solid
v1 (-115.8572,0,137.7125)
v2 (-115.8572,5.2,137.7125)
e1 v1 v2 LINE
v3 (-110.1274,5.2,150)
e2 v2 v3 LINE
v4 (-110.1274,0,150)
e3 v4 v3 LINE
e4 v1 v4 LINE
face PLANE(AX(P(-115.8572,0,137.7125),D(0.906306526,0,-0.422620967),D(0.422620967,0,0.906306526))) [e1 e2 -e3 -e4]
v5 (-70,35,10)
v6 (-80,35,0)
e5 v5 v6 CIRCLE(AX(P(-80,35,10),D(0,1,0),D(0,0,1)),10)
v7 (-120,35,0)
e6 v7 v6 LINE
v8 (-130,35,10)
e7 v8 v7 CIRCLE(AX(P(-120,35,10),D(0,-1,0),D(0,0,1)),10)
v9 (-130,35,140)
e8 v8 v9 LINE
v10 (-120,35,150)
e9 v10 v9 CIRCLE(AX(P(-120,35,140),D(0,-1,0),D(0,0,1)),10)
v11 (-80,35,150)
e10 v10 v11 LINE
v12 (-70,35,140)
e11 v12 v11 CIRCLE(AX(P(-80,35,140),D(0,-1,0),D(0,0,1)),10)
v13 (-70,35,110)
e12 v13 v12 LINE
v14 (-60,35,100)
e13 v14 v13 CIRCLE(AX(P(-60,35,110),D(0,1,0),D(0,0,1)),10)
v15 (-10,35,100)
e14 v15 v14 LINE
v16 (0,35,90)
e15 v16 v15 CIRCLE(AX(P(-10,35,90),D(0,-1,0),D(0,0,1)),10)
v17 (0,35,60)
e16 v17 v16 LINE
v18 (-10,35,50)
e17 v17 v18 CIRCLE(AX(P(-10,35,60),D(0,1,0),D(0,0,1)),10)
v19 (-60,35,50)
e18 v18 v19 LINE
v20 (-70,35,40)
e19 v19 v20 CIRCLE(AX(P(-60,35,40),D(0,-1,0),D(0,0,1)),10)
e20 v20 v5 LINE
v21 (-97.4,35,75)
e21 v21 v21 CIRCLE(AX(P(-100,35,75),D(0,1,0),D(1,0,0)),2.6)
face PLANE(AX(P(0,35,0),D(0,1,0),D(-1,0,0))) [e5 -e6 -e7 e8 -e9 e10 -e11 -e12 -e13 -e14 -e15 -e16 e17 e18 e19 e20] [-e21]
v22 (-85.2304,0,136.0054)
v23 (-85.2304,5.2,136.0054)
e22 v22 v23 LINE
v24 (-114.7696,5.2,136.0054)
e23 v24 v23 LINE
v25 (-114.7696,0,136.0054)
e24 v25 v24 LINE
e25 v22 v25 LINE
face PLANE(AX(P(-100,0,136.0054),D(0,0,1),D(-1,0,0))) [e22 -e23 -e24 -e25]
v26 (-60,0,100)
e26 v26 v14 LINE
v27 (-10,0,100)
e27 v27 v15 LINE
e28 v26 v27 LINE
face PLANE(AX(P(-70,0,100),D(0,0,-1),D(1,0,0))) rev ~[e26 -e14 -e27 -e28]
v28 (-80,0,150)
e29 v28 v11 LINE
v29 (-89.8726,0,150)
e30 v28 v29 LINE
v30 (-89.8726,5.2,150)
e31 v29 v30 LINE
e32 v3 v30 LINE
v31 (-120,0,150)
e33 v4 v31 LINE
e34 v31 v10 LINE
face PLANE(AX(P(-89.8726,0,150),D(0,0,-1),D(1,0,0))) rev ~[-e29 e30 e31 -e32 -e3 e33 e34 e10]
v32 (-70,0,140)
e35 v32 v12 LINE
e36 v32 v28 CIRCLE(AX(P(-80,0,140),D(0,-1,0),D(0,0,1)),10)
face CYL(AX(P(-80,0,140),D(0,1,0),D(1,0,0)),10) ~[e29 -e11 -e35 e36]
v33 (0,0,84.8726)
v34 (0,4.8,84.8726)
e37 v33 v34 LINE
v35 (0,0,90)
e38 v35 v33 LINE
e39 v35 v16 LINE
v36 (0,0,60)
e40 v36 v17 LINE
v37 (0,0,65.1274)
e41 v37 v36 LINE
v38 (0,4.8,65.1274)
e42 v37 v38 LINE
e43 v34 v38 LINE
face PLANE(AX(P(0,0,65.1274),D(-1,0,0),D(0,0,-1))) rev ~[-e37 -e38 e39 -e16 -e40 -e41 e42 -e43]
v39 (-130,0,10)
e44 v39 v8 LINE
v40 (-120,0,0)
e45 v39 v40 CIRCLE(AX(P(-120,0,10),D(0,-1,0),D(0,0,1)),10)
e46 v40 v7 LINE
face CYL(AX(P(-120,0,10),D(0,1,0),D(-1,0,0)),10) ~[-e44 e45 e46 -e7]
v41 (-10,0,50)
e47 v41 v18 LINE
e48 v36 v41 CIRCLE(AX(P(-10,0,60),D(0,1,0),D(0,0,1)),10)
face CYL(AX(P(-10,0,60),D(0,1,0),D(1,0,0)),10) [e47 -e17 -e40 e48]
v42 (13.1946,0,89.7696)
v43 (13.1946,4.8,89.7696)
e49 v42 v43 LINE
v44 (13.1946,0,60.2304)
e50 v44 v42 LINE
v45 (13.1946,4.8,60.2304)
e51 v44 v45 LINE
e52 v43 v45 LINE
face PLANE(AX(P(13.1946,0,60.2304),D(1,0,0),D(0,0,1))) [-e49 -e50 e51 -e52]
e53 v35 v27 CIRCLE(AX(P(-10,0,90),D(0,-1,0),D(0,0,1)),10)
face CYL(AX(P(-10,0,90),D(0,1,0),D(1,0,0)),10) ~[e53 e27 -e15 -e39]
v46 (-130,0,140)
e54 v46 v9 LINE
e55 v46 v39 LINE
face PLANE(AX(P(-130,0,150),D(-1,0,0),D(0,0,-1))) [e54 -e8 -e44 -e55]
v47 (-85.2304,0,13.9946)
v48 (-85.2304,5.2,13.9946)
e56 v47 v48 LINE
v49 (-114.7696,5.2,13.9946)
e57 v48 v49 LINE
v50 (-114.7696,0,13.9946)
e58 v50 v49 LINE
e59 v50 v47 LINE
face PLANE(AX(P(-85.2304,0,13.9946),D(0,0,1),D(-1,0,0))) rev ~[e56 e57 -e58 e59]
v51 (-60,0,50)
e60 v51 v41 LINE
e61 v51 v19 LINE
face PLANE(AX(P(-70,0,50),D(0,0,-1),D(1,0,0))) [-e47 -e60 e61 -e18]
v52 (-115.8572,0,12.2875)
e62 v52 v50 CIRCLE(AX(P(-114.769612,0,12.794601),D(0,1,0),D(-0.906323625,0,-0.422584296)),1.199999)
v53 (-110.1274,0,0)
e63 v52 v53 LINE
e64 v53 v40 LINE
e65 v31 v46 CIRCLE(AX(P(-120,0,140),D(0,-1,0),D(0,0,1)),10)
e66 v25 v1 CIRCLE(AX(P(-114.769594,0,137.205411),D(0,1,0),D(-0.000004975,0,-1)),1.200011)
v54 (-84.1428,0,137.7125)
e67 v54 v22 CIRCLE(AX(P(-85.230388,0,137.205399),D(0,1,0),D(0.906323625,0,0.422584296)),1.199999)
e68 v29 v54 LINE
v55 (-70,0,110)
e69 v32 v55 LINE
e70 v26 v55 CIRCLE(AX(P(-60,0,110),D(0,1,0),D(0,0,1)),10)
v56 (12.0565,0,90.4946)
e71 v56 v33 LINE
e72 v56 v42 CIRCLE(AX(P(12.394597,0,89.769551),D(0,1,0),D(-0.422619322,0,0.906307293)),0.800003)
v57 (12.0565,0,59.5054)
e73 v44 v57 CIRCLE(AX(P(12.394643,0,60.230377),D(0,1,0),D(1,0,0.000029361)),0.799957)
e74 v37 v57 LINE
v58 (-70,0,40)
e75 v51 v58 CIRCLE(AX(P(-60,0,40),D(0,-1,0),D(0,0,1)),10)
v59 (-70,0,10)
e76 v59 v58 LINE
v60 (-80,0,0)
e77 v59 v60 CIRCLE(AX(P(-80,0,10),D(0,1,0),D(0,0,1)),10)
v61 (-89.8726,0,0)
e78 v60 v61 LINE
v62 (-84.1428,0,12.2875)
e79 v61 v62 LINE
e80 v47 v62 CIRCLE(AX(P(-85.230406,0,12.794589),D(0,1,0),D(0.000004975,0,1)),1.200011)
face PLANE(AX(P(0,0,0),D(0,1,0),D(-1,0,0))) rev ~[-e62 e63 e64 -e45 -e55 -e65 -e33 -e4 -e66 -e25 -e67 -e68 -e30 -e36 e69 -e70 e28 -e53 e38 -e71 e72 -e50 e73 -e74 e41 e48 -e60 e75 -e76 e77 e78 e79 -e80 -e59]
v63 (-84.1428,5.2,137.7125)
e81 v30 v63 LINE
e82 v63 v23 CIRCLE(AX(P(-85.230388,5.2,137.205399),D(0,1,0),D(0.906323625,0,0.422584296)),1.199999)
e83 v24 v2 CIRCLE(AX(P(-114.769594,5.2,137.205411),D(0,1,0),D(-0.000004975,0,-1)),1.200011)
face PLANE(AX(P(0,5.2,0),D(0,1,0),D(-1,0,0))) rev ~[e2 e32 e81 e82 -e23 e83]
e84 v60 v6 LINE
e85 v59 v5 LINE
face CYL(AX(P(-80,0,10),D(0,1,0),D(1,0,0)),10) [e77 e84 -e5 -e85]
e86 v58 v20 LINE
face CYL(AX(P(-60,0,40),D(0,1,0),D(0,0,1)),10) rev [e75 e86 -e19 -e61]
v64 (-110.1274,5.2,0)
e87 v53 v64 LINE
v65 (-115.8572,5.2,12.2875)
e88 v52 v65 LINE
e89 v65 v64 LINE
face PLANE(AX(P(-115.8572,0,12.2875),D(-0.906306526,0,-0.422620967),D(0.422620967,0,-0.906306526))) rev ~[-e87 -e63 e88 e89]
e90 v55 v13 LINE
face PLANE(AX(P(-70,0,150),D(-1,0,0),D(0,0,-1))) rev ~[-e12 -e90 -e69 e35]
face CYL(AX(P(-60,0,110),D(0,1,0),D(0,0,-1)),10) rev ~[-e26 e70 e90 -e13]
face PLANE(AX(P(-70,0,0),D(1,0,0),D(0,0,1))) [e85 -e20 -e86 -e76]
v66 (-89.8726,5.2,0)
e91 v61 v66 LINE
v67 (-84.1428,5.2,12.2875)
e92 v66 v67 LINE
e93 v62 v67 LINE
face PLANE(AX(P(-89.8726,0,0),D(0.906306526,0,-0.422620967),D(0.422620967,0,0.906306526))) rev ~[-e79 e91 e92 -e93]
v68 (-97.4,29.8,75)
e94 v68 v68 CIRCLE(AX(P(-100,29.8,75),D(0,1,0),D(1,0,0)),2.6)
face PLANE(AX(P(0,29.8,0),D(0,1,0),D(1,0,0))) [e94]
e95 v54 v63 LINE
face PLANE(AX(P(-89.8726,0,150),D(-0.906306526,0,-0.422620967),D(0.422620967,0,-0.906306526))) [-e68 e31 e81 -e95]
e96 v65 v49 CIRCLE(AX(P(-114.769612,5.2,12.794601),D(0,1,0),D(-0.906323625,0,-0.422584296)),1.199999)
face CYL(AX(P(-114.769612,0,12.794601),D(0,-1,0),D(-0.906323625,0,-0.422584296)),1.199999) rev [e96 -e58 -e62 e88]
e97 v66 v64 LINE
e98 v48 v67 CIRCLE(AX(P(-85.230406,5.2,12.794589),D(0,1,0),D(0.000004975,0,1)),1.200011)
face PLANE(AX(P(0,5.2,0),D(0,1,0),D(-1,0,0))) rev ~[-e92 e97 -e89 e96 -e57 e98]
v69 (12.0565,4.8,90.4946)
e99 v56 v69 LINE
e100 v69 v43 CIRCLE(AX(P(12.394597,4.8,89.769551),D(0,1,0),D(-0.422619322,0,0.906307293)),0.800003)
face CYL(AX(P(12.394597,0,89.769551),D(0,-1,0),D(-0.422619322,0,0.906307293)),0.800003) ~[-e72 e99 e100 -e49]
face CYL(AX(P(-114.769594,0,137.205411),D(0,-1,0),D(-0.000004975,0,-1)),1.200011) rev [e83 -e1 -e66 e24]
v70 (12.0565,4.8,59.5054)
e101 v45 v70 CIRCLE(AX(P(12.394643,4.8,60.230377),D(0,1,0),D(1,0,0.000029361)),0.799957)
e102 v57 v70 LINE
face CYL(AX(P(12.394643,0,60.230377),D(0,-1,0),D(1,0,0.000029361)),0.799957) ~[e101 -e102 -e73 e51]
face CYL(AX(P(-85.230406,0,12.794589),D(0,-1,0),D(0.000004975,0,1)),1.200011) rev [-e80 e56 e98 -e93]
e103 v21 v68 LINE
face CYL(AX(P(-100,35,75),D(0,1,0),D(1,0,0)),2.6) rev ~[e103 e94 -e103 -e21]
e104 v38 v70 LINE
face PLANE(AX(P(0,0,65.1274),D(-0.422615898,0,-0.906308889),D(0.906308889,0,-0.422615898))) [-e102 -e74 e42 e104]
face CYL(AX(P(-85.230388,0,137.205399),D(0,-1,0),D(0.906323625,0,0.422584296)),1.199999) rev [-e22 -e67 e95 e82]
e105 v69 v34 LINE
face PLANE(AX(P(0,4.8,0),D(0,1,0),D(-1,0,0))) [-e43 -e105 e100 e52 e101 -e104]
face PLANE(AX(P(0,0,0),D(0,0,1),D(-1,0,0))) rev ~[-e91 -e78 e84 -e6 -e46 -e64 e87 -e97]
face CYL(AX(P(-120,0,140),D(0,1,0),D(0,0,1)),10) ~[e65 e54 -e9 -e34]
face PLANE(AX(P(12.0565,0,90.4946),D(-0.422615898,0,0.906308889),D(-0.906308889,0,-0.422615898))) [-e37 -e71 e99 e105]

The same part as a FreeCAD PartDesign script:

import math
import FreeCAD as App
import Part
import Sketcher

V = App.Vector
Q = App.Units.Quantity


def edges_at(feature, points):
    """Names of the edges that pass closest to the given points."""
    edges = feature.Shape.Edges
    near = lambda p: min(range(len(edges)), key=lambda i: edges[i].distToShape(Part.Vertex(*p))[0])
    return sorted({f"Edge{near(p) + 1}" for p in points})

doc = App.newDocument("Part")
body = doc.addObject("PartDesign::Body", "Body")

sketch1 = body.newObject("Sketcher::SketchObject", "Sketch")
sketch1.AttachmentSupport = (doc.getObject("XZ_Plane"), [""])
sketch1.MapMode = "FlatFace"
sketch1.addGeometry([
    Part.LineSegment(V(0, 0, 0), V(-200, 0, 0)),
    Part.LineSegment(V(-200, 0, 0), V(-200, 150, 0)),
    Part.LineSegment(V(-200, 150, 0), V(0, 150, 0)),
    Part.LineSegment(V(0, 150, 0), V(0, 0, 0)),
], False)
sketch1.addConstraint([
    Sketcher.Constraint("Coincident", 0, 2, 1, 1),
    Sketcher.Constraint("Coincident", 1, 2, 2, 1),
    Sketcher.Constraint("Coincident", 2, 2, 3, 1),
    Sketcher.Constraint("Coincident", 3, 2, 0, 1),
    Sketcher.Constraint("Horizontal", 0),
    Sketcher.Constraint("Vertical", 1),
    Sketcher.Constraint("Horizontal", 2),
    Sketcher.Constraint("Vertical", 3),
    Sketcher.Constraint("Coincident", 3, 2, -1, 1),
    Sketcher.Constraint("DistanceX", 0, 2, 0, 1, 200.0),
    Sketcher.Constraint("DistanceY", 1, 1, 1, 2, 150.0),
])
pad1 = body.newObject("PartDesign::Pad", "Pad")
pad1.Profile = sketch1
pad1.Length = 35
pad1.Reversed = True

sketch2 = body.newObject("Sketcher::SketchObject", "Sketch001")
sketch2.AttachmentSupport = (doc.getObject("XZ_Plane"), [""])
sketch2.MapMode = "FlatFace"
sketch2.addGeometry([
    Part.LineSegment(V(-84.1428, 12.2875, 0), V(-89.8726, 0, 0)),
    Part.LineSegment(V(-89.8726, 0, 0), V(-110.1274, 0, 0)),
    Part.LineSegment(V(-110.1274, 0, 0), V(-115.8572, 12.2875, 0)),
    Part.ArcOfCircle(Part.Circle(V(-114.7696, 12.7946, 0), V(0, 0, 1), 1.20001), math.radians(90), math.radians(204.997568)),
    Part.LineSegment(V(-114.7696, 13.9946, 0), V(-85.2304, 13.9946, 0)),
    Part.ArcOfCircle(Part.Circle(V(-85.2304, 12.7946, 0), V(0, 0, 1), 1.2), math.radians(-24.997568), math.radians(90)),
    Part.LineSegment(V(-110.1274, 150, 0), V(-89.8726, 150, 0)),
    Part.LineSegment(V(-89.8726, 150, 0), V(-84.1428, 137.7125, 0)),
    Part.ArcOfCircle(Part.Circle(V(-85.2304, 137.2054, 0), V(0, 0, 1), 1.20001), math.radians(-90), math.radians(24.997568)),
    Part.LineSegment(V(-85.2304, 136.0054, 0), V(-114.7696, 136.0054, 0)),
    Part.ArcOfCircle(Part.Circle(V(-114.7696, 137.2054, 0), V(0, 0, 1), 1.2), math.radians(155.002432), math.radians(270)),
    Part.LineSegment(V(-115.8572, 137.7125, 0), V(-110.1274, 150, 0)),
], False)
sketch2.addConstraint([
    Sketcher.Constraint("Coincident", 0, 2, 1, 1),
    Sketcher.Constraint("Coincident", 1, 2, 2, 1),
    Sketcher.Constraint("Tangent", 2, 2, 3, 2),
    Sketcher.Constraint("Tangent", 3, 1, 4, 1),
    Sketcher.Constraint("Tangent", 4, 2, 5, 2),
    Sketcher.Constraint("Tangent", 5, 1, 0, 1),
    Sketcher.Constraint("Coincident", 6, 2, 7, 1),
    Sketcher.Constraint("Tangent", 7, 2, 8, 2),
    Sketcher.Constraint("Tangent", 8, 1, 9, 1),
    Sketcher.Constraint("Tangent", 9, 2, 10, 2),
    Sketcher.Constraint("Tangent", 10, 1, 11, 1),
    Sketcher.Constraint("Coincident", 11, 2, 6, 1),
    Sketcher.Constraint("Horizontal", 1),
    Sketcher.Constraint("Horizontal", 4),
    Sketcher.Constraint("Horizontal", 6),
    Sketcher.Constraint("Horizontal", 9),
    Sketcher.Constraint("Equal", 3, 5),
    Sketcher.Constraint("Equal", 5, 8),
    Sketcher.Constraint("Equal", 8, 10),
    Sketcher.Constraint("PointOnObject", 0, 2, -1),
    Sketcher.Constraint("Parallel", 2, 7),
    Sketcher.Constraint("Parallel", 0, 11),
    Sketcher.Constraint("Horizontal", 2, 2, 5, 1),
    Sketcher.Constraint("Vertical", 5, 3, 8, 3),
    Sketcher.Constraint("Vertical", 3, 3, 10, 3),
    Sketcher.Constraint("Vertical", 0, 2, 6, 2),
    Sketcher.Constraint("DistanceY", -1, 1, 6, 2, 150.0),
    Sketcher.Constraint("Radius", 3, 1.2),
    Sketcher.Constraint("Angle", 0, Q("-115.0002 deg")),
    Sketcher.Constraint("DistanceX", 1, 2, 1, 1, 20.2548),
    Sketcher.Constraint("DistanceX", 4, 1, 4, 2, 29.5392),
    Sketcher.Constraint("DistanceX", 3, 3, -1, 1, 114.7696),
])
pocket1 = body.newObject("PartDesign::Pocket", "Pocket")
pocket1.Profile = sketch2
pocket1.Length = 5.2

sketch3 = body.newObject("Sketcher::SketchObject", "Sketch002")
sketch3.AttachmentSupport = (doc.getObject("XZ_Plane"), [""])
sketch3.MapMode = "FlatFace"
sketch3.addGeometry([
    Part.LineSegment(V(12.0565, 59.5054, 0), V(0, 65.1274, 0)),
    Part.LineSegment(V(0, 65.1274, 0), V(0, 84.8726, 0)),
    Part.LineSegment(V(0, 84.8726, 0), V(12.0565, 90.4946, 0)),
    Part.ArcOfCircle(Part.Circle(V(12.3946, 89.7696, 0), V(0, 0, 1), 0.79996), math.radians(0), math.radians(115.001749)),
    Part.LineSegment(V(13.1946, 89.7696, 0), V(13.1946, 60.2304, 0)),
    Part.ArcOfCircle(Part.Circle(V(12.3946, 60.2304, 0), V(0, 0, 1), 0.8), math.radians(-115.001749), math.radians(0)),
], False)
sketch3.addConstraint([
    Sketcher.Constraint("Coincident", 0, 2, 1, 1),
    Sketcher.Constraint("Coincident", 1, 2, 2, 1),
    Sketcher.Constraint("Tangent", 2, 2, 3, 2),
    Sketcher.Constraint("Tangent", 3, 1, 4, 1),
    Sketcher.Constraint("Tangent", 4, 2, 5, 2),
    Sketcher.Constraint("Tangent", 5, 1, 0, 1),
    Sketcher.Constraint("Vertical", 1),
    Sketcher.Constraint("Vertical", 4),
    Sketcher.Constraint("Equal", 3, 5),
    Sketcher.Constraint("PointOnObject", 0, 2, -2),
    Sketcher.Constraint("Vertical", 2, 2, 5, 1),
    Sketcher.Constraint("Radius", 3, 0.8),
    Sketcher.Constraint("Angle", 0, Q("155.0001 deg")),
    Sketcher.Constraint("DistanceY", 1, 1, 1, 2, 19.7452),
    Sketcher.Constraint("DistanceY", 4, 2, 4, 1, 29.5392),
    Sketcher.Constraint("DistanceY", -1, 1, 3, 3, 89.7696),
])
pad2 = body.newObject("PartDesign::Pad", "Pad001")
pad2.Profile = sketch3
pad2.Length = 4.8
pad2.Reversed = True

sketch4 = body.newObject("Sketcher::SketchObject", "Sketch003")
sketch4.AttachmentSupport = (doc.getObject("XZ_Plane"), [""])
sketch4.MapMode = "FlatFace"
sketch4.AttachmentOffset = App.Placement(V(0, 0, -35), App.Rotation())
sketch4.addGeometry(Part.Circle(V(-100, 75, 0), V(0, 0, 1), 2.6), False)
sketch4.addConstraint([
    Sketcher.Constraint("Diameter", 0, 5.2),
    Sketcher.Constraint("DistanceX", 0, 3, -1, 1, 100.0),
    Sketcher.Constraint("DistanceY", -1, 1, 0, 3, 75.0),
])
pocket2 = body.newObject("PartDesign::Pocket", "Pocket001")
pocket2.Profile = sketch4
pocket2.Length = 5.2
pocket2.Reversed = True

sketch5 = body.newObject("Sketcher::SketchObject", "Sketch004")
sketch5.AttachmentSupport = (doc.getObject("XZ_Plane"), [""])
sketch5.MapMode = "FlatFace"
sketch5.addGeometry([
    Part.LineSegment(V(-70, 50, 0), V(-70, 0, 0)),
    Part.LineSegment(V(-70, 0, 0), V(0, 0, 0)),
    Part.LineSegment(V(0, 0, 0), V(0, 50, 0)),
    Part.LineSegment(V(0, 50, 0), V(-70, 50, 0)),
    Part.LineSegment(V(-200, 150, 0), V(-200, 0, 0)),
    Part.LineSegment(V(-200, 0, 0), V(-130, 0, 0)),
    Part.LineSegment(V(-130, 0, 0), V(-130, 150, 0)),
    Part.LineSegment(V(-130, 150, 0), V(-200, 150, 0)),
    Part.LineSegment(V(0, 100, 0), V(0, 150, 0)),
    Part.LineSegment(V(0, 150, 0), V(-70, 150, 0)),
    Part.LineSegment(V(-70, 150, 0), V(-70, 100, 0)),
    Part.LineSegment(V(-70, 100, 0), V(0, 100, 0)),
], False)
sketch5.addConstraint([
    Sketcher.Constraint("Coincident", 0, 2, 1, 1),
    Sketcher.Constraint("Coincident", 1, 2, 2, 1),
    Sketcher.Constraint("Coincident", 2, 2, 3, 1),
    Sketcher.Constraint("Coincident", 3, 2, 0, 1),
    Sketcher.Constraint("Coincident", 4, 2, 5, 1),
    Sketcher.Constraint("Coincident", 5, 2, 6, 1),
    Sketcher.Constraint("Coincident", 6, 2, 7, 1),
    Sketcher.Constraint("Coincident", 7, 2, 4, 1),
    Sketcher.Constraint("Coincident", 8, 2, 9, 1),
    Sketcher.Constraint("Coincident", 9, 2, 10, 1),
    Sketcher.Constraint("Coincident", 10, 2, 11, 1),
    Sketcher.Constraint("Coincident", 11, 2, 8, 1),
    Sketcher.Constraint("Vertical", 0),
    Sketcher.Constraint("Horizontal", 1),
    Sketcher.Constraint("Vertical", 2),
    Sketcher.Constraint("Horizontal", 3),
    Sketcher.Constraint("Vertical", 4),
    Sketcher.Constraint("Horizontal", 5),
    Sketcher.Constraint("Vertical", 6),
    Sketcher.Constraint("Horizontal", 7),
    Sketcher.Constraint("Vertical", 8),
    Sketcher.Constraint("Horizontal", 9),
    Sketcher.Constraint("Vertical", 10),
    Sketcher.Constraint("Horizontal", 11),
    Sketcher.Constraint("Coincident", 1, 2, -1, 1),
    Sketcher.Constraint("PointOnObject", 4, 2, -1),
    Sketcher.Constraint("PointOnObject", 8, 2, -2),
    Sketcher.Constraint("Horizontal", 7, 2, 8, 2),
    Sketcher.Constraint("Vertical", 3, 2, 9, 2),
    Sketcher.Constraint("Equal", 3, 5),
    Sketcher.Constraint("Equal", 2, 8),
    Sketcher.Constraint("DistanceX", 1, 1, 1, 2, 70.0),
    Sketcher.Constraint("DistanceY", 0, 2, 0, 1, 50.0),
    Sketcher.Constraint("DistanceY", 3, 2, 10, 2, 50.0),
    Sketcher.Constraint("DistanceX", 4, 2, -1, 1, 200.0),
])
pocket3 = body.newObject("PartDesign::Pocket", "Pocket002")
pocket3.Profile = sketch5
pocket3.Length = 40
doc.recompute()

fillet = body.newObject("PartDesign::Fillet", "Fillet")
fillet.Base = (pocket3, edges_at(pocket3, [
    (0, 17.5, 100),
    (-70, 17.5, 100),
    (-70, 17.5, 150),
    (-130, 17.5, 150),
    (-130, 17.5, 0),
    (-70, 17.5, 0),
    (0, 17.5, 50),
    (-70, 17.5, 50),
]))
fillet.Radius = 10

doc.recompute()
